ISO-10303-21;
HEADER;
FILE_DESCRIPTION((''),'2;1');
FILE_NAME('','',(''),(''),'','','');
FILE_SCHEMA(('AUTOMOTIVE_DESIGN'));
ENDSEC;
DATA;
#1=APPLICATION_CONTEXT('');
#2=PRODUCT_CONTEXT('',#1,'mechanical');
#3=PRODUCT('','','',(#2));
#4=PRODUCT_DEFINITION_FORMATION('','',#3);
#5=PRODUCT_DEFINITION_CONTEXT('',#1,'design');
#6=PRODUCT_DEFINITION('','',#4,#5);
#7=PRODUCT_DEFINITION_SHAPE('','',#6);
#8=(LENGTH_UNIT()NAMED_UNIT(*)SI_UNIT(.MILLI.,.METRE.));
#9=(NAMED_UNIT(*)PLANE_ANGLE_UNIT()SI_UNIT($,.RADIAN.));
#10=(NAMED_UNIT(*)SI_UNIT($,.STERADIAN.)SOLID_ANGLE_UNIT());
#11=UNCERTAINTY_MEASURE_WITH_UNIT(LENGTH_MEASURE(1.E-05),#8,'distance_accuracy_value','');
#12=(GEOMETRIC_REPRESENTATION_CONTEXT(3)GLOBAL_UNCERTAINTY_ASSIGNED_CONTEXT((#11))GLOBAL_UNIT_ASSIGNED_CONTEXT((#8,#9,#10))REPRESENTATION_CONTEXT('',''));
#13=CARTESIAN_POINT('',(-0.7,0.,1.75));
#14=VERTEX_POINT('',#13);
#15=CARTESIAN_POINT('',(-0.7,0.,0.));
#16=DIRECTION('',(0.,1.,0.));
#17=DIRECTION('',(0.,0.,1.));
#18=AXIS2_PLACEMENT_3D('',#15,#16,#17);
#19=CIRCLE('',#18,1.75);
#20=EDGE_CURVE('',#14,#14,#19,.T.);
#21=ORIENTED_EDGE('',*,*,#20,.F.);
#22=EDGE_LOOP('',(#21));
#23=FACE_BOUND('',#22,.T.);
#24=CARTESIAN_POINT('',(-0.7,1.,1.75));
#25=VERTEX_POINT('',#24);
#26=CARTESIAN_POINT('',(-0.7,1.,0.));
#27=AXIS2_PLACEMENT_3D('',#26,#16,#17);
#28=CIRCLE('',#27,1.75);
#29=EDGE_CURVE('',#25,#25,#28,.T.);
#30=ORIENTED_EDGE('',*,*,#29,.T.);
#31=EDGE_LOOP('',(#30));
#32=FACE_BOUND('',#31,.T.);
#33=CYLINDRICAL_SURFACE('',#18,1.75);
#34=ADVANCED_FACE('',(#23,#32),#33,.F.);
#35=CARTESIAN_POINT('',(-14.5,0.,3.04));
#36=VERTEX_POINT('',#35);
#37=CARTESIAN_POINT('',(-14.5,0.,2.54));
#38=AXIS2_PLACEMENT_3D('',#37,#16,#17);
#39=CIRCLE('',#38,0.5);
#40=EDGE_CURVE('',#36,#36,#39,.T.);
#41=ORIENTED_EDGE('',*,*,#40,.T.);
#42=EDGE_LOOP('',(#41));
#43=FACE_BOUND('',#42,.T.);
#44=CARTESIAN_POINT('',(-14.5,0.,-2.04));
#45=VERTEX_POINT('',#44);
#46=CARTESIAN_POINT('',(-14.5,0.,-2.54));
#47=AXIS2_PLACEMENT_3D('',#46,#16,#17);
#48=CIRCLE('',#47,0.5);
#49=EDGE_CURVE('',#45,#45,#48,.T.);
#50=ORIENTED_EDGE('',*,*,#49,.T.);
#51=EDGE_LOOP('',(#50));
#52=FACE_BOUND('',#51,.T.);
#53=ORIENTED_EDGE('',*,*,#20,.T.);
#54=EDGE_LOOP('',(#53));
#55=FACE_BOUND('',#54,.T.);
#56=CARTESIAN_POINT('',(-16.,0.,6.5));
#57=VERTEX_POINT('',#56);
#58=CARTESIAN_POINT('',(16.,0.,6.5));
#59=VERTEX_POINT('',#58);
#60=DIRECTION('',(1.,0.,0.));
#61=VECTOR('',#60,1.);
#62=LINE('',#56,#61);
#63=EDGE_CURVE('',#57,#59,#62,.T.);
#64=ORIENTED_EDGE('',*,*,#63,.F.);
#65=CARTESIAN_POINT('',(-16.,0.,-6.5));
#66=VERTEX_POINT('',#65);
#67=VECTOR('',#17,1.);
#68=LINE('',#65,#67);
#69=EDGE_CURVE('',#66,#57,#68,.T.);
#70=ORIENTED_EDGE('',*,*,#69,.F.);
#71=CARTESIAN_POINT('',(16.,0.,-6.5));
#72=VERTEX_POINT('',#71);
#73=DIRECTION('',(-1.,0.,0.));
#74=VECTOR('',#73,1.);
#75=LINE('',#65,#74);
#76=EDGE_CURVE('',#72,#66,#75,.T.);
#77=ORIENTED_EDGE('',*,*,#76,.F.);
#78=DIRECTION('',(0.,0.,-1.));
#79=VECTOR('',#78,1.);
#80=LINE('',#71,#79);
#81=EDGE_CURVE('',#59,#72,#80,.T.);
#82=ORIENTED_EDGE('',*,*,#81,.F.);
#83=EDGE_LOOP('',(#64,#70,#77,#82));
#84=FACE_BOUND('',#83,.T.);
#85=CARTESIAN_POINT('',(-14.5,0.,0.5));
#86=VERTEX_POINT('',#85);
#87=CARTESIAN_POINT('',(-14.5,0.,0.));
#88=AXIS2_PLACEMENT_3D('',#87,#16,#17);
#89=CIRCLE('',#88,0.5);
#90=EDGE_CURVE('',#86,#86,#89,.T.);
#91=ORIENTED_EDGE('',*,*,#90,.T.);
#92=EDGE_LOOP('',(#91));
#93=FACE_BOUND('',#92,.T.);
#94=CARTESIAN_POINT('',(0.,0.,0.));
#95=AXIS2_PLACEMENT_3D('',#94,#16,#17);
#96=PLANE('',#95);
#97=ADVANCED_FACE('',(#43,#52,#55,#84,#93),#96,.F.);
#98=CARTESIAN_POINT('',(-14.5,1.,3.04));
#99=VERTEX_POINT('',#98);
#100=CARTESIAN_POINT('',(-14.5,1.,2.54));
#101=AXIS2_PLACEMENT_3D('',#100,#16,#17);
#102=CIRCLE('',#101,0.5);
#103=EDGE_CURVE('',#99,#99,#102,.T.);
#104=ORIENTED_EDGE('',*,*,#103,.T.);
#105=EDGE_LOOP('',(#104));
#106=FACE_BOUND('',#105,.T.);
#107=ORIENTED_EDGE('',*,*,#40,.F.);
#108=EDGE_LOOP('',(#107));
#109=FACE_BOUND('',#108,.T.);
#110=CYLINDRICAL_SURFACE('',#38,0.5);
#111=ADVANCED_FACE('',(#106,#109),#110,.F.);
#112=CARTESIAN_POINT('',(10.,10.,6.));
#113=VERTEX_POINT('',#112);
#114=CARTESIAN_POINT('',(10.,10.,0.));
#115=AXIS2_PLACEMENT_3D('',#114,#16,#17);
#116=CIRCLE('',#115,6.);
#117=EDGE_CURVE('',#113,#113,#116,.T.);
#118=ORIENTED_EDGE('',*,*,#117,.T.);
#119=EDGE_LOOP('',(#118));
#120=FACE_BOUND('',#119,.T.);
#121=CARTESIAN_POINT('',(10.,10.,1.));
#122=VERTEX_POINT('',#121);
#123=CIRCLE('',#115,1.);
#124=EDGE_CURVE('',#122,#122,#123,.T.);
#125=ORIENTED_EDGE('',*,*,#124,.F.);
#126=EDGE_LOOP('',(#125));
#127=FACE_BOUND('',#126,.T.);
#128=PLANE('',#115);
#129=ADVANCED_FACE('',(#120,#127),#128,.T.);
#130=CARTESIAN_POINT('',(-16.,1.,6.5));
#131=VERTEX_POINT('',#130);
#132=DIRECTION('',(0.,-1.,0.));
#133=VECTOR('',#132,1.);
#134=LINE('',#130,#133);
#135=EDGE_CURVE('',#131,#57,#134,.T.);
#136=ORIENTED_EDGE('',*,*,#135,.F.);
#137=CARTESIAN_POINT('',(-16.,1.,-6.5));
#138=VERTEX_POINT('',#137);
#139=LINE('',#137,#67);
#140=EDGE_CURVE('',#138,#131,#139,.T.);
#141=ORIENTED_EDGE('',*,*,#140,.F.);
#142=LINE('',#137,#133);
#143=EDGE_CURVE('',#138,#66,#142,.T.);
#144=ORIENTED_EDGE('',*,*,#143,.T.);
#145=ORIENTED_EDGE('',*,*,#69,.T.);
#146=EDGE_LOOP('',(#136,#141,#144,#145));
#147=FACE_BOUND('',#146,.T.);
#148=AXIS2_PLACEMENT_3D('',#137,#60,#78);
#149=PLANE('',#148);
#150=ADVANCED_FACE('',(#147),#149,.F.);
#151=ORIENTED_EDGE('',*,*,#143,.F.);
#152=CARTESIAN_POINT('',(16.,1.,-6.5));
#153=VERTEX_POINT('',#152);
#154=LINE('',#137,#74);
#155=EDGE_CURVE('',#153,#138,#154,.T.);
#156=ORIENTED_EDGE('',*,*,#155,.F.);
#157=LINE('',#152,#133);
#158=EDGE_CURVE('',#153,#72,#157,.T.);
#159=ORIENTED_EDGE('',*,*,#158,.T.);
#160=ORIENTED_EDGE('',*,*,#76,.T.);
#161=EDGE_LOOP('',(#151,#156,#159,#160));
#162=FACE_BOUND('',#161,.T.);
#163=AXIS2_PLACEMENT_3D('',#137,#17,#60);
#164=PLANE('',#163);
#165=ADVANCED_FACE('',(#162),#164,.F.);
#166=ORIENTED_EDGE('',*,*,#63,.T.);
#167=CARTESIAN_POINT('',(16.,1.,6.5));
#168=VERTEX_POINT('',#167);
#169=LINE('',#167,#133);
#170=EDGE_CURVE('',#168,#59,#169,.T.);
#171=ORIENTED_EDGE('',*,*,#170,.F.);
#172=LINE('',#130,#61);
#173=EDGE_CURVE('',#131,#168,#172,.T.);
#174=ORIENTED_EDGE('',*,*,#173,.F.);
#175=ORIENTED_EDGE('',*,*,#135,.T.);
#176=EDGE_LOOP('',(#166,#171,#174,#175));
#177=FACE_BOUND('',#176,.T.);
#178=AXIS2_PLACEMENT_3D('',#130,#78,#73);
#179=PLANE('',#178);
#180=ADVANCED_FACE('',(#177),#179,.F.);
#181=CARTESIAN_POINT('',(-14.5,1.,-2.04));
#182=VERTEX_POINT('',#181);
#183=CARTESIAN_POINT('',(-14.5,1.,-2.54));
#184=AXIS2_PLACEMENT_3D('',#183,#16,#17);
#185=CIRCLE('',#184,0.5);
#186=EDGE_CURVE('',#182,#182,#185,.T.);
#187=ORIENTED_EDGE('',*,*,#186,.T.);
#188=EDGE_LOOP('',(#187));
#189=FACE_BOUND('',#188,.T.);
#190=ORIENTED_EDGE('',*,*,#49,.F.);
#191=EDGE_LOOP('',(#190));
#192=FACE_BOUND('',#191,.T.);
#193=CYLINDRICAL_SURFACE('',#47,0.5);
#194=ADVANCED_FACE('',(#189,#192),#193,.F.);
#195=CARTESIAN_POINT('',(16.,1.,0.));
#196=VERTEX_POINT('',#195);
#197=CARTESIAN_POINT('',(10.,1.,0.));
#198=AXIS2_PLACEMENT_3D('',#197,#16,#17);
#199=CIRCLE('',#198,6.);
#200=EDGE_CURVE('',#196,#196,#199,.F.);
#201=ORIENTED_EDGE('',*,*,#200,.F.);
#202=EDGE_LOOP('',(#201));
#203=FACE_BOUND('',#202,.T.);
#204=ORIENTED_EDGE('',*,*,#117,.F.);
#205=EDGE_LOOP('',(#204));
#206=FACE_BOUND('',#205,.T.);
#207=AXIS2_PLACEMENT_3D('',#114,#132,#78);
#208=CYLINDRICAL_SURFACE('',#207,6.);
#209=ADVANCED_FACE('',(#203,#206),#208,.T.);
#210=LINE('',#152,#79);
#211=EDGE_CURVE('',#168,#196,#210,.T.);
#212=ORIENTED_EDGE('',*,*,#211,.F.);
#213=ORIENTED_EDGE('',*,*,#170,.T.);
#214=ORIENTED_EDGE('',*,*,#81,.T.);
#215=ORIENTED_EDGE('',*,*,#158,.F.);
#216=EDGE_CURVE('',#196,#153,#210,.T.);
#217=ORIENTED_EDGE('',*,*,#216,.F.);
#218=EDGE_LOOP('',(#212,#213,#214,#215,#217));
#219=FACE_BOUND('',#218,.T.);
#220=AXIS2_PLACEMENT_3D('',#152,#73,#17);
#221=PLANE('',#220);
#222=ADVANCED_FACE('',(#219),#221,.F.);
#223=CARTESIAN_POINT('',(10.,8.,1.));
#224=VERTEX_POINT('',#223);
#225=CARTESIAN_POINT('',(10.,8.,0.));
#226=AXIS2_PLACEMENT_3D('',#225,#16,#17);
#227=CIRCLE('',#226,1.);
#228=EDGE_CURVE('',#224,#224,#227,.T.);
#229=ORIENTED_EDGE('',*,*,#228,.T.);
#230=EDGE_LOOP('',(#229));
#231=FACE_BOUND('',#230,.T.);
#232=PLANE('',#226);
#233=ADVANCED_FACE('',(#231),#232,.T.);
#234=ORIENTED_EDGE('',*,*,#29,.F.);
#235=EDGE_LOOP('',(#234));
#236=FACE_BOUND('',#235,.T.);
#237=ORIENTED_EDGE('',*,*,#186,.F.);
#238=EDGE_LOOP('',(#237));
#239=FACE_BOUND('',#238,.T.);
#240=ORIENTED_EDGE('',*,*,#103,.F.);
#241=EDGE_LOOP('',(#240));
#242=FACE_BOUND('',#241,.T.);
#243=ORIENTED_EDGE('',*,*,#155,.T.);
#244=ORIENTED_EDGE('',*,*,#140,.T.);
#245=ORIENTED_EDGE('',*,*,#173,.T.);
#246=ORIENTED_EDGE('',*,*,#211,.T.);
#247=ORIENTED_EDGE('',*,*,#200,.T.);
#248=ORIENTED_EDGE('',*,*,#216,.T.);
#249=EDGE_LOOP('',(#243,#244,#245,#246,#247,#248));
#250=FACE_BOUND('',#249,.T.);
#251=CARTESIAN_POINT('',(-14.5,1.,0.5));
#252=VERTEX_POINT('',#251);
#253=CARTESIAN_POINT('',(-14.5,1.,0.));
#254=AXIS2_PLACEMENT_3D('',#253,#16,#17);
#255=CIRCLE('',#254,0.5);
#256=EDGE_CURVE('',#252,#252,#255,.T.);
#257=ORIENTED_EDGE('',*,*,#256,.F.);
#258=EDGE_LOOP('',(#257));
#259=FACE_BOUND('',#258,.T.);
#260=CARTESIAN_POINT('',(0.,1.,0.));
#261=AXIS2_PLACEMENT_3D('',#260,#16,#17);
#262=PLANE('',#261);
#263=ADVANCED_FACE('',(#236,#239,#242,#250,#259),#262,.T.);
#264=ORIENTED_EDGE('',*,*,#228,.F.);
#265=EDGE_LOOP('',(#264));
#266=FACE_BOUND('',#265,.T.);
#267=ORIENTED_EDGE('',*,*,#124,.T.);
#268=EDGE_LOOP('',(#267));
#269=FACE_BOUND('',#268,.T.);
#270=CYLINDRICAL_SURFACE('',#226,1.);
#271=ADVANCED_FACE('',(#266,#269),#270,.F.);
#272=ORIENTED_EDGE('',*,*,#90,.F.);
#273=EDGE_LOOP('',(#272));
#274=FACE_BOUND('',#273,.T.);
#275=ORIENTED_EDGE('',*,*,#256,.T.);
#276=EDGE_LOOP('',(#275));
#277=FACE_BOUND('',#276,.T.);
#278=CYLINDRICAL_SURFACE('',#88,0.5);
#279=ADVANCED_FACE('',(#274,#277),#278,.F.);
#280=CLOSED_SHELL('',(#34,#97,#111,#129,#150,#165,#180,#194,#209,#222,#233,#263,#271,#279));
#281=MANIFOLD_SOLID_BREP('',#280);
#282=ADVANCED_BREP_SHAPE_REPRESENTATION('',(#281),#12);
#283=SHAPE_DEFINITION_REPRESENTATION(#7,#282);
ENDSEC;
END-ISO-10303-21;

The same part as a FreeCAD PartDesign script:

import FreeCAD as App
import Part
import Sketcher
Q = App.Units.Quantity

doc = App.newDocument("Part")
body = doc.addObject("PartDesign::Body", "Body")

sketch1 = body.newObject("Sketcher::SketchObject", "Sketch")
sketch1.AttachmentSupport = (doc.getObject("XZ_Plane"), [""])
sketch1.MapMode = "FlatFace"
sketch1.addGeometry([
    Part.LineSegment(App.Vector(-16, -6, 0), App.Vector(-16, 6, 0)),
    Part.LineSegment(App.Vector(-16, 6, 0), App.Vector(16, 6, 0)),
    Part.LineSegment(App.Vector(16, 6, 0), App.Vector(16, -6, 0)),
    Part.LineSegment(App.Vector(16, -6, 0), App.Vector(-16, -6, 0)),
], False)
sketch1.addConstraint([
    Sketcher.Constraint("Coincident", 0, 2, 1, 1),
    Sketcher.Constraint("Coincident", 1, 2, 2, 1),
    Sketcher.Constraint("Coincident", 2, 2, 3, 1),
    Sketcher.Constraint("Coincident", 3, 2, 0, 1),
    Sketcher.Constraint("Vertical", 0),
    Sketcher.Constraint("Horizontal", 1),
    Sketcher.Constraint("Vertical", 2),
    Sketcher.Constraint("Horizontal", 3),
    Sketcher.Constraint("Symmetric", 0, 2, 2, 2, -1, 1),
    Sketcher.Constraint("DistanceX", 1, 1, 1, 2, Q("32 mm")),
    Sketcher.Constraint("DistanceY", 0, 1, 0, 2, Q("13 mm")),
])
pad1 = body.newObject("PartDesign::Pad", "Pad")
pad1.Profile = sketch1
pad1.Length = 1
pad1.Reversed = True

sketch2 = body.newObject("Sketcher::SketchObject", "Sketch001")
sketch2.AttachmentSupport = (doc.getObject("XZ_Plane"), [""])
sketch2.MapMode = "FlatFace"
sketch2.AttachmentOffset = App.Placement(App.Vector(0, 0, -1), App.Rotation())
sketch2.addGeometry(Part.Circle(App.Vector(-0.7, 0, 0), App.Vector(0, 0, 1), 1.8), False)
sketch2.addConstraint([
    Sketcher.Constraint("PointOnObject", 0, 3, -1),
    Sketcher.Constraint("Diameter", 0, Q("3.5 mm")),
    Sketcher.Constraint("DistanceX", 0, 3, -1, 1, Q("0.7 mm")),
])
pocket1 = body.newObject("PartDesign::Pocket", "Pocket")
pocket1.Profile = sketch2
pocket1.Type = "ThroughAll"
pocket1.Reversed = True

sketch3 = body.newObject("Sketcher::SketchObject", "Sketch002")
sketch3.AttachmentSupport = (doc.getObject("XZ_Plane"), [""])
sketch3.MapMode = "FlatFace"
sketch3.addGeometry(Part.Circle(App.Vector(10, 0, 0), App.Vector(0, 0, 1), 6), False)
sketch3.addConstraint([
    Sketcher.Constraint("PointOnObject", 0, 3, -1),
    Sketcher.Constraint("Diameter", 0, Q("12 mm")),
    Sketcher.Constraint("DistanceX", -1, 1, 0, 3, Q("10 mm")),
])
pad2 = body.newObject("PartDesign::Pad", "Pad001")
pad2.Profile = sketch3
pad2.Length = 10
pad2.Reversed = True

sketch4 = body.newObject("Sketcher::SketchObject", "Sketch003")
sketch4.AttachmentSupport = (doc.getObject("XZ_Plane"), [""])
sketch4.MapMode = "FlatFace"
sketch4.AttachmentOffset = App.Placement(App.Vector(0, 0, -1), App.Rotation())
sketch4.addGeometry([
    Part.Circle(App.Vector(-14.5, -2.5, 0), App.Vector(0, 0, 1), 0.5),
    Part.Circle(App.Vector(-14.5, 0, 0), App.Vector(0, 0, 1), 0.5),
    Part.Circle(App.Vector(-14.5, 2.5, 0), App.Vector(0, 0, 1), 0.5),
], False)
sketch4.addConstraint([
    Sketcher.Constraint("Equal", 0, 1),
    Sketcher.Constraint("Equal", 1, 2),
    Sketcher.Constraint("Symmetric", 0, 3, 2, 3, -1),
    Sketcher.Constraint("PointOnObject", 1, 3, -1),
    Sketcher.Constraint("Vertical", 0, 3, 1, 3),
    Sketcher.Constraint("Diameter", 0, Q("1 mm")),
    Sketcher.Constraint("DistanceX", 0, 3, -1, 1, Q("14.5 mm")),
    Sketcher.Constraint("DistanceY", 0, 3, -1, 1, Q("2.54 mm")),
])
pocket2 = body.newObject("PartDesign::Pocket", "Pocket001")
pocket2.Profile = sketch4
pocket2.Type = "ThroughAll"
pocket2.Reversed = True

sketch5 = body.newObject("Sketcher::SketchObject", "Sketch004")
sketch5.AttachmentSupport = (doc.getObject("XZ_Plane"), [""])
sketch5.MapMode = "FlatFace"
sketch5.AttachmentOffset = App.Placement(App.Vector(0, 0, -10), App.Rotation())
sketch5.addGeometry(Part.Circle(App.Vector(10, 0, 0), App.Vector(0, 0, 1), 1), False)
sketch5.addConstraint([
    Sketcher.Constraint("PointOnObject", 0, 3, -1),
    Sketcher.Constraint("Diameter", 0, Q("2 mm")),
    Sketcher.Constraint("DistanceX", -1, 1, 0, 3, Q("10 mm")),
])
pocket3 = body.newObject("PartDesign::Pocket", "Pocket002")
pocket3.Profile = sketch5
pocket3.Length = 2
pocket3.Reversed = True

doc.recompute()
